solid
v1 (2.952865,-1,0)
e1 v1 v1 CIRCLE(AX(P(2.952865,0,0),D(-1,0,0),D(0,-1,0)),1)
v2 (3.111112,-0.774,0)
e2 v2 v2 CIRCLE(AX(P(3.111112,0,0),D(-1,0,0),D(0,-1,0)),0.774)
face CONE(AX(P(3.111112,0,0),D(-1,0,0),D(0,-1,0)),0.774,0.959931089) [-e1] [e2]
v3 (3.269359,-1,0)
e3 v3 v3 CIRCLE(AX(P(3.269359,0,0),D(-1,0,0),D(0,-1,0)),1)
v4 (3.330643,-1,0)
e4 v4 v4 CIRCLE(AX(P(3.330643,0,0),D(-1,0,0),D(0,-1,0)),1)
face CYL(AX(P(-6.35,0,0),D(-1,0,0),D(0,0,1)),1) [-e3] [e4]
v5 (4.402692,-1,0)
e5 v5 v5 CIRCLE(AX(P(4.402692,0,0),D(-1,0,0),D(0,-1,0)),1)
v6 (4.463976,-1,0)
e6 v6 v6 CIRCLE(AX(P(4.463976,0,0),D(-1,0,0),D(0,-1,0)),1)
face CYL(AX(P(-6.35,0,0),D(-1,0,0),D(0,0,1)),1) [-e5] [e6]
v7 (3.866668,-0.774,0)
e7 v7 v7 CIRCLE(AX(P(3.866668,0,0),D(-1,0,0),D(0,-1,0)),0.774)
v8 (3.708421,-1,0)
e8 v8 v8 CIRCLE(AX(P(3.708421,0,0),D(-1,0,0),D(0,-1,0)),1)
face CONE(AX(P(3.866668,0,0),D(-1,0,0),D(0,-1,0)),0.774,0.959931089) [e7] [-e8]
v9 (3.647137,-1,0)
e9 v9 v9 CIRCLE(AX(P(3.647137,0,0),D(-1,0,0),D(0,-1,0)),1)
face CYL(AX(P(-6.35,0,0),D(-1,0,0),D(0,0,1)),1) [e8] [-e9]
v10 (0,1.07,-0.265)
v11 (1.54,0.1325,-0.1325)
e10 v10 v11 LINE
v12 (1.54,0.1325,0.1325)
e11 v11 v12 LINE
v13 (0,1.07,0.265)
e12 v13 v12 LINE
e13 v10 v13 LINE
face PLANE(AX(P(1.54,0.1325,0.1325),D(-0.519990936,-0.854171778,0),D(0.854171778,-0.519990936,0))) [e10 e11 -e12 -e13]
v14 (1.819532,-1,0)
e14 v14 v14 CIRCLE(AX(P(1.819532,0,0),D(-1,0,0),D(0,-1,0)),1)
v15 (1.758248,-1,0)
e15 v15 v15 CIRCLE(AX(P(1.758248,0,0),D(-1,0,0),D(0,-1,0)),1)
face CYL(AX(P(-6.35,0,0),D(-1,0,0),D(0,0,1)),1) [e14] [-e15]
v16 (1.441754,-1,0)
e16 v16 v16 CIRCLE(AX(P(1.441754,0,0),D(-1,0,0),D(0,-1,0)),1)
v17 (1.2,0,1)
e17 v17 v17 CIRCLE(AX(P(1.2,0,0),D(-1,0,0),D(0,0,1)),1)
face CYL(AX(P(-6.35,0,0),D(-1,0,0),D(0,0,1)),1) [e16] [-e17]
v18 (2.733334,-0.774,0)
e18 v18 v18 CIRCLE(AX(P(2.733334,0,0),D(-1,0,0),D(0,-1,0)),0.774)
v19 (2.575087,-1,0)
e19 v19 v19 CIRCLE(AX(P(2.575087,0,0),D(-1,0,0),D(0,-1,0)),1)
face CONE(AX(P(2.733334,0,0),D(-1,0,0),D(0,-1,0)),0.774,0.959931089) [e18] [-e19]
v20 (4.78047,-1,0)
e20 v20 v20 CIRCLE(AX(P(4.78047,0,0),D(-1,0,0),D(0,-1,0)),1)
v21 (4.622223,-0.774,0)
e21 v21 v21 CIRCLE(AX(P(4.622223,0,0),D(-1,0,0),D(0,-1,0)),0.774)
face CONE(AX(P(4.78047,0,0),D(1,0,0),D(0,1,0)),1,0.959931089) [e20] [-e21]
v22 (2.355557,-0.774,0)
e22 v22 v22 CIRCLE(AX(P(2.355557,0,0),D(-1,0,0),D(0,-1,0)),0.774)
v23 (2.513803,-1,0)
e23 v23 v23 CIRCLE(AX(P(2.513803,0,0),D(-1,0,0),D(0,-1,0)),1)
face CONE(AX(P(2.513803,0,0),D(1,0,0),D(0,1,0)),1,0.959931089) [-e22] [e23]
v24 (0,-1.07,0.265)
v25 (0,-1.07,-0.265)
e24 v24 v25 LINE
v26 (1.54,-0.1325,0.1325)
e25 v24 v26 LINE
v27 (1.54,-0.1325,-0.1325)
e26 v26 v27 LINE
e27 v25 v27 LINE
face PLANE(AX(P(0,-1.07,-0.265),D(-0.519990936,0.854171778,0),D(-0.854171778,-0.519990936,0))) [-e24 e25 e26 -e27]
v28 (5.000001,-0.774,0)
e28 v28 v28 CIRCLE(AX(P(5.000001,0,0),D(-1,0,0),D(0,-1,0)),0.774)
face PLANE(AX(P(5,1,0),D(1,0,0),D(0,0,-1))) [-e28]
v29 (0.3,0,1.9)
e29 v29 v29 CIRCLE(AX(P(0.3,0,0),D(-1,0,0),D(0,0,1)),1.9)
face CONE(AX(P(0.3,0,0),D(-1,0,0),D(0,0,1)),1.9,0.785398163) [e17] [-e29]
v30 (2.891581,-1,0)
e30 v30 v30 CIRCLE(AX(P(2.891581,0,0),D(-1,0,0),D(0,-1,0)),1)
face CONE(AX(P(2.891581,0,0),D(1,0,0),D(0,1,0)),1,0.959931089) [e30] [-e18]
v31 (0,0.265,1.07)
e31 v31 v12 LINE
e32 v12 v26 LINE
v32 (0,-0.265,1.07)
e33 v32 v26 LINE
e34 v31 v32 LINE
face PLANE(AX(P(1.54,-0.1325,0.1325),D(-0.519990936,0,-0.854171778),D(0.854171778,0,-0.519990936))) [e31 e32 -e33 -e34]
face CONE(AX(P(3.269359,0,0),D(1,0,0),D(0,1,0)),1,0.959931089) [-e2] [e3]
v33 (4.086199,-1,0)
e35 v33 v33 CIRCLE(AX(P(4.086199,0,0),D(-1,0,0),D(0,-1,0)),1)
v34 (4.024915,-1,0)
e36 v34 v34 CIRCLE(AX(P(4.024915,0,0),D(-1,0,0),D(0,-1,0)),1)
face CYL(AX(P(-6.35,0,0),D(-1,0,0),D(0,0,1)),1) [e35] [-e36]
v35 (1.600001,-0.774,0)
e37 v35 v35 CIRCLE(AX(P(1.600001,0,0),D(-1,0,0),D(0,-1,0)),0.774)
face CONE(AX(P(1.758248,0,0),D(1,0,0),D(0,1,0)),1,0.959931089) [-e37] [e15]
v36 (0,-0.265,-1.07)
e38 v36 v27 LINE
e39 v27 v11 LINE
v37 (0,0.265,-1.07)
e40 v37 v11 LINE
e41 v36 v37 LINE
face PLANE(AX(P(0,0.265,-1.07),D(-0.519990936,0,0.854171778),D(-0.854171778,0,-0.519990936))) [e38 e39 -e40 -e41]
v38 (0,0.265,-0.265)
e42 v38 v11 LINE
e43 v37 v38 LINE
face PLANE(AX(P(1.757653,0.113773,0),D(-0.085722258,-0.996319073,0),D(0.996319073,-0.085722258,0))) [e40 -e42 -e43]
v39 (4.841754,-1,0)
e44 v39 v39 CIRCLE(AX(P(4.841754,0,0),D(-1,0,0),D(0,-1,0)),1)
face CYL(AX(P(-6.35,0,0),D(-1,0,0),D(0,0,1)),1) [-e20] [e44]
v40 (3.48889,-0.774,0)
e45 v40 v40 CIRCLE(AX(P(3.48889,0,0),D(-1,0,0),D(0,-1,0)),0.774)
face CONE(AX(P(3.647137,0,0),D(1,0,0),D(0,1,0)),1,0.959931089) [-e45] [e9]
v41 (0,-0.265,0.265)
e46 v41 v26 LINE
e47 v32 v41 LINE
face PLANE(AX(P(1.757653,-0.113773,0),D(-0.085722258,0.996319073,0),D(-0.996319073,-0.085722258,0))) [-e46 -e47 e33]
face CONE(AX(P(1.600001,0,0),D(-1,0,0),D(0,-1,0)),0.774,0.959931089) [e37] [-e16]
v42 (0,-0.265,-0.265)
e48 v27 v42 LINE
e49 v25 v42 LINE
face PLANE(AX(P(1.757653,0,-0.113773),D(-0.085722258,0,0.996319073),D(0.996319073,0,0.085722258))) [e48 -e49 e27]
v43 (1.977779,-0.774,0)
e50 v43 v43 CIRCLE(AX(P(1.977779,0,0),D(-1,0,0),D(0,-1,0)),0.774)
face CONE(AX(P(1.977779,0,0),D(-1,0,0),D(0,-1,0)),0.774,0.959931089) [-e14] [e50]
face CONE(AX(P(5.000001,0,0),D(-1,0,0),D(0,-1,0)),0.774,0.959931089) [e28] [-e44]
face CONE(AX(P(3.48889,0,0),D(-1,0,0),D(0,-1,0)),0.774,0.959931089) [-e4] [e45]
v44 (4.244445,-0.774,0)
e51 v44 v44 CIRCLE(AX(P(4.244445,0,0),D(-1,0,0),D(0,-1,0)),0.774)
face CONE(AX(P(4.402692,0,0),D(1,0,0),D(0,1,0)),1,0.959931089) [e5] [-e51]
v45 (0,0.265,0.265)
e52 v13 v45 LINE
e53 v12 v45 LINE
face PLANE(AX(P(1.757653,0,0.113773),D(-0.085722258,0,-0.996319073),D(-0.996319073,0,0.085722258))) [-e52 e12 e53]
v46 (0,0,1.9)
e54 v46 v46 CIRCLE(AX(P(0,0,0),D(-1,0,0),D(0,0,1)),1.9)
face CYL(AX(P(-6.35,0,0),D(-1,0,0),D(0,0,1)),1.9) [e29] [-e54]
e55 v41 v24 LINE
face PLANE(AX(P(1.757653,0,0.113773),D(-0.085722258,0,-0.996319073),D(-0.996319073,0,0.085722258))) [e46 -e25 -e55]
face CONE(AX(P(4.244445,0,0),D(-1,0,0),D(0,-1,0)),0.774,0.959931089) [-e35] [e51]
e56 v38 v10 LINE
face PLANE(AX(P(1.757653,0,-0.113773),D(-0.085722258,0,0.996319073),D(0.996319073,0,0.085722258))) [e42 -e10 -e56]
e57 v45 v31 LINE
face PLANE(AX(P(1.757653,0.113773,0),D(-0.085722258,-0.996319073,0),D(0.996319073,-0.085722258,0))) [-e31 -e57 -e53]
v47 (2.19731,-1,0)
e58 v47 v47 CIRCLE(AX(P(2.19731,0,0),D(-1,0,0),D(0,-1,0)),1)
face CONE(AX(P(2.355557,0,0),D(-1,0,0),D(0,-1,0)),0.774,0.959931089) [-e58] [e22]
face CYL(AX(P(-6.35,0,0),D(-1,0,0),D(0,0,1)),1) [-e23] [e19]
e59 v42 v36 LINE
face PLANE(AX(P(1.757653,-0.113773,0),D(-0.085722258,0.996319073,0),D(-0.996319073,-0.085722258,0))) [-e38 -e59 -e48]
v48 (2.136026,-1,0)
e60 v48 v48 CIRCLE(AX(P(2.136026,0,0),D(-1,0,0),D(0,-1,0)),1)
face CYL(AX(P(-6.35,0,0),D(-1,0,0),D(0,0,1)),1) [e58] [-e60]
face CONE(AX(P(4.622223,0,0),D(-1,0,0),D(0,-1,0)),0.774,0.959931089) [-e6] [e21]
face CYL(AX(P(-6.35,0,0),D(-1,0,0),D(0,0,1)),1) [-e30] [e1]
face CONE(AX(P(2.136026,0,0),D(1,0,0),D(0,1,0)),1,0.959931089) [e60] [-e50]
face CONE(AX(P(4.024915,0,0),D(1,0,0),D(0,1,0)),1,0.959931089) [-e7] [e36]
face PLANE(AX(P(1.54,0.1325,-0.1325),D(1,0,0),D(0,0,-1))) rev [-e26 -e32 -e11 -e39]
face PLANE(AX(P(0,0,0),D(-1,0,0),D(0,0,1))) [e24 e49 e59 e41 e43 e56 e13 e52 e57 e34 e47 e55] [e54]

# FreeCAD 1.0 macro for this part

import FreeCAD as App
import Part
import Sketcher
Q = App.Units.Quantity


def add_polygon(sketch, points):
    """Adds a closed chain of lines whose ends are joined by coincident constraints."""
    first, n = sketch.GeometryCount, len(points)
    for a, b in zip(points, points[1:] + points[:1]):
        sketch.addGeometry(Part.LineSegment(App.Vector(*a, 0), App.Vector(*b, 0)), False)
    for i in range(n):
        sketch.addConstraint(Sketcher.Constraint("Coincident", first + i, 2, first + (i + 1) % n, 1))

doc = App.newDocument("Part")
body = doc.addObject("PartDesign::Body", "Body")

# Sketch on XY plane
sketch1 = doc.addObject("Sketcher::SketchObject", "Sketch")
body.addObject(sketch1)
sketch1.AttachmentSupport = (doc.XY_Plane, [""])
sketch1.MapMode = "FlatFace"
add_polygon(sketch1, [(0, 1.9), (0, 0), (5, 0), (5, 1), (1.2, 1), (0.3, 1.9)])  # lines 0-5
sketch1.addConstraint(Sketcher.Constraint("Vertical", 0))
sketch1.addConstraint(Sketcher.Constraint("Horizontal", 1))
sketch1.addConstraint(Sketcher.Constraint("Vertical", 2))
sketch1.addConstraint(Sketcher.Constraint("Horizontal", 3))
sketch1.addConstraint(Sketcher.Constraint("Horizontal", 5))
sketch1.addConstraint(Sketcher.Constraint("Coincident", 0, 2, -1, 1))
sketch1.addConstraint(Sketcher.Constraint("DistanceX", 1, 1, 1, 2, Q("5 mm")))
sketch1.addConstraint(Sketcher.Constraint("DistanceY", 2, 1, 2, 2, Q("1 mm")))
sketch1.addConstraint(Sketcher.Constraint("Angle", 4, Q("135 deg")))
sketch1.addConstraint(Sketcher.Constraint("DistanceX", 3, 2, 3, 1, Q("3.8 mm")))
sketch1.addConstraint(Sketcher.Constraint("DistanceX", 5, 2, 5, 1, Q("0.3 mm")))
revolution = doc.addObject("PartDesign::Revolution", "Revolution")
body.addObject(revolution)
revolution.Profile = sketch1
revolution.ReferenceAxis = (sketch1, ["H_Axis"])
revolution.Angle = 360

# Sketch on YZ plane
sketch2 = doc.addObject("Sketcher::SketchObject", "Sketch001")
body.addObject(sketch2)
sketch2.AttachmentSupport = (doc.YZ_Plane, [""])
sketch2.MapMode = "FlatFace"
add_polygon(sketch2, [(1.1, -0.3), (-1.1, -0.3), (-1.1, 0.3), (1.1, 0.3)])  # lines 0-3
sketch2.addConstraint(Sketcher.Constraint("Horizontal", 0))
sketch2.addConstraint(Sketcher.Constraint("Vertical", 1))
sketch2.addConstraint(Sketcher.Constraint("Horizontal", 2))
sketch2.addConstraint(Sketcher.Constraint("Vertical", 3))
sketch2.addConstraint(Sketcher.Constraint("Symmetric", 0, 2, 2, 2, -1, 1))
sketch2.addConstraint(Sketcher.Constraint("DistanceX", 0, 2, 0, 1, Q("2.14 mm")))
sketch2.addConstraint(Sketcher.Constraint("DistanceY", 1, 1, 1, 2, Q("0.53 mm")))

# Sketch on YZ plane
sketch3 = doc.addObject("Sketcher::SketchObject", "Sketch002")
body.addObject(sketch3)
sketch3.AttachmentSupport = (doc.YZ_Plane, [""])
sketch3.MapMode = "FlatFace"
sketch3.AttachmentOffset = App.Placement(App.Vector(0, 0, 1.54), App.Rotation())
add_polygon(sketch3, [(0.13, -0.13), (-0.13, -0.13), (-0.13, 0.13), (0.13, 0.13)])  # lines 0-3
sketch3.addConstraint(Sketcher.Constraint("Horizontal", 0))
sketch3.addConstraint(Sketcher.Constraint("Vertical", 1))
sketch3.addConstraint(Sketcher.Constraint("Horizontal", 2))
sketch3.addConstraint(Sketcher.Constraint("Vertical", 3))
sketch3.addConstraint(Sketcher.Constraint("Symmetric", 0, 2, 2, 2, -1, 1))
sketch3.addConstraint(Sketcher.Constraint("Equal", 2, 1))
sketch3.addConstraint(Sketcher.Constraint("DistanceX", 0, 2, 0, 1, Q("0.265 mm")))

subtractiveloft = doc.addObject("PartDesign::SubtractiveLoft", "SubtractiveLoft")
body.addObject(subtractiveloft)
subtractiveloft.Profile = sketch2
subtractiveloft.Sections = [sketch3]
doc.recompute()

polarpattern = doc.addObject("PartDesign::PolarPattern", "PolarPattern")
body.addObject(polarpattern)
polarpattern.Originals = [subtractiveloft]
polarpattern.Axis = (doc.X_Axis, [""])
polarpattern.Angle = 90
polarpattern.Occurrences = 2
body.Tip = polarpattern

# Sketch on XY plane
sketch4 = doc.addObject("Sketcher::SketchObject", "Sketch003")
body.addObject(sketch4)
sketch4.AttachmentSupport = (doc.XY_Plane, [""])
sketch4.MapMode = "FlatFace"
add_polygon(sketch4, [(1.6, -0.77), (1.44, -1), (1.44, -1.25), (1.76, -1.25), (1.76, -1)])  # lines 0-4
sketch4.addConstraint(Sketcher.Constraint("Vertical", 1))
sketch4.addConstraint(Sketcher.Constraint("Horizontal", 2))
sketch4.addConstraint(Sketcher.Constraint("Vertical", 3))
sketch4.addConstraint(Sketcher.Constraint("Horizontal", 0, 2, 3, 2))
sketch4.addConstraint(Sketcher.Constraint("Equal", 0, 4))
sketch4.addConstraint(Sketcher.Constraint("Angle", 0, Q("-125 deg")))
sketch4.addConstraint(Sketcher.Constraint("DistanceY", 0, 2, -1, 1, Q("1 mm")))
sketch4.addConstraint(Sketcher.Constraint("DistanceY", 1, 2, 1, 1, Q("0.25 mm")))
sketch4.addConstraint(Sketcher.Constraint("DistanceX", -1, 1, 4, 2, Q("1.600001 mm")))
sketch4.addConstraint(Sketcher.Constraint("DistanceY", 4, 2, -1, 1, Q("0.774 mm")))
groove = doc.addObject("PartDesign::Groove", "Groove")
body.addObject(groove)
groove.Profile = sketch4
groove.ReferenceAxis = (sketch4, ["H_Axis"])
groove.Angle = 360
doc.recompute()

linearpattern = doc.addObject("PartDesign::LinearPattern", "LinearPattern")
body.addObject(linearpattern)
linearpattern.Originals = [groove]
linearpattern.Direction = (doc.X_Axis, [""])
linearpattern.Mode = "offset"
linearpattern.Offset = 0.377778
linearpattern.Occurrences = 10
body.Tip = linearpattern

doc.recompute()
